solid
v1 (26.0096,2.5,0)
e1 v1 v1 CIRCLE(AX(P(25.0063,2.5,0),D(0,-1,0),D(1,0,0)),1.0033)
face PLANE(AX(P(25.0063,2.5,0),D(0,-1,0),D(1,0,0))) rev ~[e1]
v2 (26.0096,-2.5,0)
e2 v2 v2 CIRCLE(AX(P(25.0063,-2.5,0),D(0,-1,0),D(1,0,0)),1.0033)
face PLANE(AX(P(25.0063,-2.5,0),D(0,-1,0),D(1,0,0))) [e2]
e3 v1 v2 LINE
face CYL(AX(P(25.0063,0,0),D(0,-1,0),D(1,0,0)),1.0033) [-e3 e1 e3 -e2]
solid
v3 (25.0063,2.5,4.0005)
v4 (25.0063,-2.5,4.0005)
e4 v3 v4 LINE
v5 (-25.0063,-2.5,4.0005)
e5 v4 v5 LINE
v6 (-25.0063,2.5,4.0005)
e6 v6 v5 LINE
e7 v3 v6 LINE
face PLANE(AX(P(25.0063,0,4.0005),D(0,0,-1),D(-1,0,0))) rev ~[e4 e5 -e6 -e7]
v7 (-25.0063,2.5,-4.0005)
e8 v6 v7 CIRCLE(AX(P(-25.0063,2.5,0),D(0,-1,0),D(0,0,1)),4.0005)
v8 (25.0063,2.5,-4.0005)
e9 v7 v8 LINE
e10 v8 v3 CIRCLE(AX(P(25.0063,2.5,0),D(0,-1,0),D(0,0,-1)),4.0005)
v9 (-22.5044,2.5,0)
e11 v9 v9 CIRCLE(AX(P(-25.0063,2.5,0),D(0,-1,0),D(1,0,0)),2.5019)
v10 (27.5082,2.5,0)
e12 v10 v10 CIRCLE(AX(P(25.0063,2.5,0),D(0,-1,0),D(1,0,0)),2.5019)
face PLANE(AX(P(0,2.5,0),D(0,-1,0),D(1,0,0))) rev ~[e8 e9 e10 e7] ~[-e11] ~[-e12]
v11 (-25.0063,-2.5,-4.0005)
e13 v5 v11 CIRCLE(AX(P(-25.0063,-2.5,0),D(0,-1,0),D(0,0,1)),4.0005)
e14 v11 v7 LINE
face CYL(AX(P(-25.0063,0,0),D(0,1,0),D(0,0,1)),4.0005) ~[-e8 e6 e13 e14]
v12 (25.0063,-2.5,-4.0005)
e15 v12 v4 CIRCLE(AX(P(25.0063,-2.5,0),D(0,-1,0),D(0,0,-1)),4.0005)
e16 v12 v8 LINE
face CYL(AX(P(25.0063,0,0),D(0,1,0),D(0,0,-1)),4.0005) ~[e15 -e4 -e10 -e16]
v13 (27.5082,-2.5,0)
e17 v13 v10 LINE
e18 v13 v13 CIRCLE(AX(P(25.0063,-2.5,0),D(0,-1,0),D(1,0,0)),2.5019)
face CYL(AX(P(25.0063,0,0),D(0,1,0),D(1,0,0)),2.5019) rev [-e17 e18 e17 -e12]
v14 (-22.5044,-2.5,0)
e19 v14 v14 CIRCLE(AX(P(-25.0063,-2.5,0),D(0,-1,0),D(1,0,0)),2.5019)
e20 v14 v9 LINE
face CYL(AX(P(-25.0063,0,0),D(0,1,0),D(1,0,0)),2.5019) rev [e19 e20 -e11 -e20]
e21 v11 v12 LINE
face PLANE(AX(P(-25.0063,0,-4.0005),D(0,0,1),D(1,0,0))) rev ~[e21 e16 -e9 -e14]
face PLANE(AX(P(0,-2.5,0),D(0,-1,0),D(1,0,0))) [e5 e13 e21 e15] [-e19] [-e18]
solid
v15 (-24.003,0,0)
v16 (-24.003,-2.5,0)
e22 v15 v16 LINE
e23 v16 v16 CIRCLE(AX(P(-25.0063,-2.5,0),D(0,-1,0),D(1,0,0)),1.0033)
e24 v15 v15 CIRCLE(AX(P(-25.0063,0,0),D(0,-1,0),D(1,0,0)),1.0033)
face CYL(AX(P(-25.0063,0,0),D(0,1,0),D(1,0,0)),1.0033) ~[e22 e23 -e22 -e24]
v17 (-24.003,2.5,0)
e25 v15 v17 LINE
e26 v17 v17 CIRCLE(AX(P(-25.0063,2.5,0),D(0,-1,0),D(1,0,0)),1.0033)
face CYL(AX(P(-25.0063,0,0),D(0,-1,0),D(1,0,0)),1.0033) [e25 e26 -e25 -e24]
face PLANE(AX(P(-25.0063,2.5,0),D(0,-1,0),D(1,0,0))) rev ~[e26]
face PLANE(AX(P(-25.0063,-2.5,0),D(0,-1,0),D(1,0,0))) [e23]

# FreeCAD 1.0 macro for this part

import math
import FreeCAD as App
import Part
import Sketcher
Q = App.Units.Quantity

doc = App.newDocument("Part")
body = doc.addObject("PartDesign::Body", "Body")
body.AllowCompound = True

sketch1 = body.newObject("Sketcher::SketchObject", "Sketch")
sketch1.AttachmentSupport = (doc.getObject("XZ_Plane"), [""])
sketch1.MapMode = "FlatFace"
sketch1.addGeometry([
    Part.ArcOfCircle(Part.Circle(App.Vector(25, 0, 0), App.Vector(0, 0, 1), 4), math.radians(-90), math.radians(90)),
    Part.LineSegment(App.Vector(25, 4, 0), App.Vector(-25, 4, 0)),
    Part.ArcOfCircle(Part.Circle(App.Vector(-25, 0, 0), App.Vector(0, 0, 1), 4), math.radians(90), math.radians(270)),
    Part.LineSegment(App.Vector(-25, -4, 0), App.Vector(25, -4, 0)),
    Part.Circle(App.Vector(-25, 0, 0), App.Vector(0, 0, 1), 2.5),
    Part.Circle(App.Vector(25, 0, 0), App.Vector(0, 0, 1), 2.5),
    Part.Circle(App.Vector(-25, 0, 0), App.Vector(0, 0, 1), 1),
    Part.Circle(App.Vector(25, 0, 0), App.Vector(0, 0, 1), 1),
], False)
sketch1.addConstraint([
    Sketcher.Constraint("Tangent", 0, 2, 1, 1),
    Sketcher.Constraint("Tangent", 1, 2, 2, 1),
    Sketcher.Constraint("Tangent", 2, 2, 3, 1),
    Sketcher.Constraint("Tangent", 3, 2, 0, 1),
    Sketcher.Constraint("Horizontal", 1),
    Sketcher.Constraint("Horizontal", 3),
    Sketcher.Constraint("Coincident", 4, 3, 2, 3),
    Sketcher.Constraint("Coincident", 5, 3, 0, 3),
    Sketcher.Constraint("Coincident", 6, 3, 2, 3),
    Sketcher.Constraint("Coincident", 7, 3, 0, 3),
    Sketcher.Constraint("Equal", 4, 5),
    Sketcher.Constraint("Equal", 6, 7),
    Sketcher.Constraint("Symmetric", 0, 3, 2, 3, -1, 1),
    Sketcher.Constraint("Diameter", 4, Q("0.197 in")),
    Sketcher.Constraint("Diameter", 6, Q("0.079 in")),
    Sketcher.Constraint("Radius", 0, Q("0.1575 in")),
    Sketcher.Constraint("DistanceX", 1, 2, 1, 1, Q("1.969 in")),
])
pad1 = body.newObject("PartDesign::Pad", "Pad")
pad1.Profile = sketch1
pad1.Length = 5
pad1.Midplane = True

doc.recompute()
